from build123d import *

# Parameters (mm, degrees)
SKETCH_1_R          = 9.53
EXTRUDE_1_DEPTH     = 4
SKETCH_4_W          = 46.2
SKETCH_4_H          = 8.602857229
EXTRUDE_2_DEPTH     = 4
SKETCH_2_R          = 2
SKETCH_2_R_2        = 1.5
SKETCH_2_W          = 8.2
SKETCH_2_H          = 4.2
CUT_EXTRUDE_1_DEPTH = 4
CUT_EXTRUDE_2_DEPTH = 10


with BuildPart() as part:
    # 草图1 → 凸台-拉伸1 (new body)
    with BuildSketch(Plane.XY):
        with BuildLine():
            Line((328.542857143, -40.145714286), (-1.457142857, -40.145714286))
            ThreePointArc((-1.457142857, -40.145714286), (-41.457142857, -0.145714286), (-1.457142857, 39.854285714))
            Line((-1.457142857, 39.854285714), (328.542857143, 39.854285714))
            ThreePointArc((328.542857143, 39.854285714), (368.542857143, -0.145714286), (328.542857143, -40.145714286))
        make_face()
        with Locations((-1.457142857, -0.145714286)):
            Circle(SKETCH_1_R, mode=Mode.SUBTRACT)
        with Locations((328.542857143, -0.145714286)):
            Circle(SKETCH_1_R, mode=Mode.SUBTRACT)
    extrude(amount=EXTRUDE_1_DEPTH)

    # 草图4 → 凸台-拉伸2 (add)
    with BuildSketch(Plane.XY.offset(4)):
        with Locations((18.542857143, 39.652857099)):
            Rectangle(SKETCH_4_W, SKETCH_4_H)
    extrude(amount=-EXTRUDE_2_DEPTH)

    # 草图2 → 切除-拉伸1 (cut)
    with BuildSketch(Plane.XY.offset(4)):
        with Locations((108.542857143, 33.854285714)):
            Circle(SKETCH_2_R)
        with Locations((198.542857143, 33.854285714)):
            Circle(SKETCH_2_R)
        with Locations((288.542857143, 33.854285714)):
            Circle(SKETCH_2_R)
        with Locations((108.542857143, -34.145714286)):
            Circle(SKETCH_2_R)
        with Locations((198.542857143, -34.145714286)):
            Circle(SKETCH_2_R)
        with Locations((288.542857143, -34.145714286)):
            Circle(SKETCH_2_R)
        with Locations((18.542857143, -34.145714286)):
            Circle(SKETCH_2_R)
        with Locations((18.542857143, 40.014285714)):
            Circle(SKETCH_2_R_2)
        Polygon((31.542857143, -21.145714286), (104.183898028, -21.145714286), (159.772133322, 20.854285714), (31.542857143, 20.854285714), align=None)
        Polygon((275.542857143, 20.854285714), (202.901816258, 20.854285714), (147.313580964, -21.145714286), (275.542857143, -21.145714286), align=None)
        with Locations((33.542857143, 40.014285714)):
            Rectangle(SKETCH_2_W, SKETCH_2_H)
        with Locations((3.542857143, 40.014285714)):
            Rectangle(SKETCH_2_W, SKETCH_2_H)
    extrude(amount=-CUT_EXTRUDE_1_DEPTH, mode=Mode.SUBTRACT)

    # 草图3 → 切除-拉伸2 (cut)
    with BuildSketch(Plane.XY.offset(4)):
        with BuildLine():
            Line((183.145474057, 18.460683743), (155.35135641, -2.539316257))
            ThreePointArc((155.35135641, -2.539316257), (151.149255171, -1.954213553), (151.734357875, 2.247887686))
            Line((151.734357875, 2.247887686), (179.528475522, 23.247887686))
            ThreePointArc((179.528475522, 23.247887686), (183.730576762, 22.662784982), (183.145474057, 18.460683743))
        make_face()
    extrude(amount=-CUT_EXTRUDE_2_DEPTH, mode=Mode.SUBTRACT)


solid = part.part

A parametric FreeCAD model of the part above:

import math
import FreeCAD as App
import Part
import Sketcher

V = App.Vector
Q = App.Units.Quantity

doc = App.newDocument("Part")
body = doc.addObject("PartDesign::Body", "Body")

# Sketch on XY plane
sketch1 = body.newObject("Sketcher::SketchObject", "Sketch")
sketch1.AttachmentSupport = (doc.getObject("XY_Plane"), [""])
sketch1.MapMode = "FlatFace"
sketch1.addGeometry(Part.LineSegment(V(-1, -40, 0), V(329, -40, 0)), False)
sketch1.addGeometry(Part.ArcOfCircle(Part.Circle(V(329, 0, 0), V(0, 0, 1), 40), math.radians(-90), math.radians(90)), False)
sketch1.addGeometry(Part.LineSegment(V(329, 40, 0), V(-1, 40, 0)), False)
sketch1.addGeometry(Part.ArcOfCircle(Part.Circle(V(-1, 0, 0), V(0, 0, 1), 40), math.radians(90), math.radians(270)), False)
sketch1.addGeometry(Part.Circle(V(329, 0, 0), V(0, 0, 1), 10), False)
sketch1.addGeometry(Part.Circle(V(-1, 0, 0), V(0, 0, 1), 10), False)
sketch1.addConstraint(Sketcher.Constraint("Tangent", 0, 2, 1, 1))
sketch1.addConstraint(Sketcher.Constraint("Tangent", 1, 2, 2, 1))
sketch1.addConstraint(Sketcher.Constraint("Tangent", 2, 2, 3, 1))
sketch1.addConstraint(Sketcher.Constraint("Tangent", 3, 2, 0, 1))
sketch1.addConstraint(Sketcher.Constraint("Horizontal", 0))
sketch1.addConstraint(Sketcher.Constraint("Horizontal", 2))
sketch1.addConstraint(Sketcher.Constraint("Coincident", 4, 3, 1, 3))
sketch1.addConstraint(Sketcher.Constraint("Coincident", 5, 3, 3, 3))
sketch1.addConstraint(Sketcher.Constraint("Equal", 4, 5))
sketch1.addConstraint(Sketcher.Constraint("Radius", 1, Q("40 mm")))
sketch1.addConstraint(Sketcher.Constraint("Diameter", 4, Q("19.06 mm")))
sketch1.addConstraint(Sketcher.Constraint("DistanceX", 0, 1, 0, 2, Q("330 mm")))
sketch1.addConstraint(Sketcher.Constraint("DistanceX", -1, 1, 1, 3, Q("328.542857 mm")))
sketch1.addConstraint(Sketcher.Constraint("DistanceY", 1, 3, -1, 1, Q("0.145714 mm")))
pad1 = body.newObject("PartDesign::Pad", "Pad")
pad1.Profile = sketch1
pad1.Length = 4

# Sketch on XY plane
sketch2 = body.newObject("Sketcher::SketchObject", "Sketch001")
sketch2.AttachmentSupport = (doc.getObject("XY_Plane"), [""])
sketch2.MapMode = "FlatFace"
sketch2.AttachmentOffset = App.Placement(V(0, 0, 4), App.Rotation())
sketch2.addGeometry(Part.LineSegment(V(-5, 44, 0), V(-5, 35, 0)), False)
sketch2.addGeometry(Part.LineSegment(V(-5, 35, 0), V(42, 35, 0)), False)
sketch2.addGeometry(Part.LineSegment(V(42, 35, 0), V(42, 44, 0)), False)
sketch2.addGeometry(Part.LineSegment(V(42, 44, 0), V(-5, 44, 0)), False)
sketch2.addConstraint(Sketcher.Constraint("Coincident", 0, 2, 1, 1))
sketch2.addConstraint(Sketcher.Constraint("Coincident", 1, 2, 2, 1))
sketch2.addConstraint(Sketcher.Constraint("Coincident", 2, 2, 3, 1))
sketch2.addConstraint(Sketcher.Constraint("Coincident", 3, 2, 0, 1))
sketch2.addConstraint(Sketcher.Constraint("Vertical", 0))
sketch2.addConstraint(Sketcher.Constraint("Horizontal", 1))
sketch2.addConstraint(Sketcher.Constraint("Vertical", 2))
sketch2.addConstraint(Sketcher.Constraint("Horizontal", 3))
sketch2.addConstraint(Sketcher.Constraint("DistanceX", 1, 1, 1, 2, Q("46.2 mm")))
sketch2.addConstraint(Sketcher.Constraint("DistanceY", 0, 2, 0, 1, Q("8.602857 mm")))
sketch2.addConstraint(Sketcher.Constraint("DistanceY", -1, 1, 0, 2, Q("35.351428 mm")))
sketch2.addConstraint(Sketcher.Constraint("DistanceX", 0, 2, -1, 1, Q("4.557143 mm")))
pad2 = body.newObject("PartDesign::Pad", "Pad001")
pad2.Profile = sketch2
pad2.Length = 4
pad2.Reversed = True

# Sketch on XY plane
sketch3 = body.newObject("Sketcher::SketchObject", "Sketch002")
sketch3.AttachmentSupport = (doc.getObject("XY_Plane"), [""])
sketch3.MapMode = "FlatFace"
sketch3.AttachmentOffset = App.Placement(V(0, 0, 4), App.Rotation())
sketch3.addGeometry(Part.Circle(V(108.5, 33.9, 0), V(0, 0, 1), 2), False)
sketch3.addGeometry(Part.Circle(V(198.5, 33.9, 0), V(0, 0, 1), 2), False)
sketch3.addGeometry(Part.Circle(V(288.5, 33.9, 0), V(0, 0, 1), 2), False)
sketch3.addGeometry(Part.Circle(V(108.5, -34.1, 0), V(0, 0, 1), 2), False)
sketch3.addGeometry(Part.Circle(V(198.5, -34.1, 0), V(0, 0, 1), 2), False)
sketch3.addGeometry(Part.Circle(V(288.5, -34.1, 0), V(0, 0, 1), 2), False)
sketch3.addGeometry(Part.Circle(V(18.5, -34.1, 0), V(0, 0, 1), 2), False)
sketch3.addGeometry(Part.Circle(V(18.5, 40, 0), V(0, 0, 1), 1.5), False)
sketch3.addGeometry(Part.LineSegment(V(31.5, -21.1, 0), V(104.2, -21.1, 0)), False)
sketch3.addGeometry(Part.LineSegment(V(104.2, -21.1, 0), V(159.8, 20.9, 0)), False)
sketch3.addGeometry(Part.LineSegment(V(159.8, 20.9, 0), V(31.5, 20.9, 0)), False)
sketch3.addGeometry(Part.LineSegment(V(31.5, 20.9, 0), V(31.5, -21.1, 0)), False)
sketch3.addGeometry(Part.LineSegment(V(275.5, 20.9, 0), V(202.9, 20.9, 0)), False)
sketch3.addGeometry(Part.LineSegment(V(202.9, 20.9, 0), V(147.3, -21.1, 0)), False)
sketch3.addGeometry(Part.LineSegment(V(147.3, -21.1, 0), V(275.5, -21.1, 0)), False)
sketch3.addGeometry(Part.LineSegment(V(275.5, -21.1, 0), V(275.5, 20.9, 0)), False)
sketch3.addGeometry(Part.LineSegment(V(29.4, 42.1, 0), V(29.4, 37.9, 0)), False)
sketch3.addGeometry(Part.LineSegment(V(29.4, 37.9, 0), V(37.6, 37.9, 0)), False)
sketch3.addGeometry(Part.LineSegment(V(37.6, 37.9, 0), V(37.6, 42.1, 0)), False)
sketch3.addGeometry(Part.LineSegment(V(37.6, 42.1, 0), V(29.4, 42.1, 0)), False)
sketch3.addGeometry(Part.LineSegment(V(-0.6, 42.1, 0), V(-0.6, 37.9, 0)), False)
sketch3.addGeometry(Part.LineSegment(V(-0.6, 37.9, 0), V(7.6, 37.9, 0)), False)
sketch3.addGeometry(Part.LineSegment(V(7.6, 37.9, 0), V(7.6, 42.1, 0)), False)
sketch3.addGeometry(Part.LineSegment(V(7.6, 42.1, 0), V(-0.6, 42.1, 0)), False)
sketch3.addConstraint(Sketcher.Constraint("Coincident", 8, 2, 9, 1))
sketch3.addConstraint(Sketcher.Constraint("Coincident", 9, 2, 10, 1))
sketch3.addConstraint(Sketcher.Constraint("Coincident", 10, 2, 11, 1))
sketch3.addConstraint(Sketcher.Constraint("Coincident", 11, 2, 8, 1))
sketch3.addConstraint(Sketcher.Constraint("Coincident", 12, 2, 13, 1))
sketch3.addConstraint(Sketcher.Constraint("Coincident", 13, 2, 14, 1))
sketch3.addConstraint(Sketcher.Constraint("Coincident", 14, 2, 15, 1))
sketch3.addConstraint(Sketcher.Constraint("Coincident", 15, 2, 12, 1))
sketch3.addConstraint(Sketcher.Constraint("Coincident", 16, 2, 17, 1))
sketch3.addConstraint(Sketcher.Constraint("Coincident", 17, 2, 18, 1))
sketch3.addConstraint(Sketcher.Constraint("Coincident", 18, 2, 19, 1))
sketch3.addConstraint(Sketcher.Constraint("Coincident", 19, 2, 16, 1))
sketch3.addConstraint(Sketcher.Constraint("Coincident", 20, 2, 21, 1))
sketch3.addConstraint(Sketcher.Constraint("Coincident", 21, 2, 22, 1))
sketch3.addConstraint(Sketcher.Constraint("Coincident", 22, 2, 23, 1))
sketch3.addConstraint(Sketcher.Constraint("Coincident", 23, 2, 20, 1))
sketch3.addConstraint(Sketcher.Constraint("Horizontal", 8))
sketch3.addConstraint(Sketcher.Constraint("Horizontal", 10))
sketch3.addConstraint(Sketcher.Constraint("Vertical", 11))
sketch3.addConstraint(Sketcher.Constraint("Horizontal", 12))
sketch3.addConstraint(Sketcher.Constraint("Horizontal", 14))
sketch3.addConstraint(Sketcher.Constraint("Vertical", 15))
sketch3.addConstraint(Sketcher.Constraint("Vertical", 16))
sketch3.addConstraint(Sketcher.Constraint("Horizontal", 17))
sketch3.addConstraint(Sketcher.Constraint("Vertical", 18))
sketch3.addConstraint(Sketcher.Constraint("Horizontal", 19))
sketch3.addConstraint(Sketcher.Constraint("Vertical", 20))
sketch3.addConstraint(Sketcher.Constraint("Horizontal", 21))
sketch3.addConstraint(Sketcher.Constraint("Vertical", 22))
sketch3.addConstraint(Sketcher.Constraint("Horizontal", 23))
sketch3.addConstraint(Sketcher.Constraint("Equal", 0, 1))
sketch3.addConstraint(Sketcher.Constraint("Equal", 1, 2))
sketch3.addConstraint(Sketcher.Constraint("Equal", 2, 3))
sketch3.addConstraint(Sketcher.Constraint("Equal", 3, 4))
sketch3.addConstraint(Sketcher.Constraint("Equal", 4, 5))
sketch3.addConstraint(Sketcher.Constraint("Equal", 5, 6))
sketch3.addConstraint(Sketcher.Constraint("Parallel", 9, 13))
sketch3.addConstraint(Sketcher.Constraint("Horizontal", 0, 3, 1, 3))
sketch3.addConstraint(Sketcher.Constraint("Horizontal", 1, 3, 2, 3))
sketch3.addConstraint(Sketcher.Constraint("Horizontal", 3, 3, 4, 3))
sketch3.addConstraint(Sketcher.Constraint("Horizontal", 4, 3, 5, 3))
sketch3.addConstraint(Sketcher.Constraint("Horizontal", 5, 3, 6, 3))
sketch3.addConstraint(Sketcher.Constraint("Horizontal", 10, 2, 12, 2))
sketch3.addConstraint(Sketcher.Constraint("Horizontal", 11, 2, 13, 2))
sketch3.addConstraint(Sketcher.Constraint("Horizontal", 17, 2, 20, 2))
sketch3.addConstraint(Sketcher.Constraint("Horizontal", 19, 2, 22, 2))
sketch3.addConstraint(Sketcher.Constraint("Vertical", 0, 3, 3, 3))
sketch3.addConstraint(Sketcher.Constraint("Vertical", 1, 3, 4, 3))
sketch3.addConstraint(Sketcher.Constraint("Vertical", 2, 3, 5, 3))
sketch3.addConstraint(Sketcher.Constraint("Vertical", 6, 3, 7, 3))
sketch3.addConstraint(Sketcher.Constraint("Equal", 8, 12))
sketch3.addConstraint(Sketcher.Constraint("Equal", 19, 21))
sketch3.addConstraint(Sketcher.Constraint("Diameter", 0, Q("4 mm")))
sketch3.addConstraint(Sketcher.Constraint("Diameter", 7, Q("3 mm")))
sketch3.addConstraint(Sketcher.Constraint("DistanceY", 11, 2, 11, 1, Q("42 mm")))
sketch3.addConstraint(Sketcher.Constraint("DistanceX", 17, 1, 17, 2, Q("8.2 mm")))
sketch3.addConstraint(Sketcher.Constraint("DistanceY", 16, 2, 16, 1, Q("4.2 mm")))
sketch3.addConstraint(Sketcher.Constraint("DistanceX", 0, 3, 1, 3, Q("90 mm")))
sketch3.addConstraint(Sketcher.Constraint("DistanceX", 1, 3, 2, 3, Q("90 mm")))
sketch3.addConstraint(Sketcher.Constraint("DistanceY", 3, 3, 0, 3, Q("68 mm")))
sketch3.addConstraint(Sketcher.Constraint("DistanceX", 6, 3, 3, 3, Q("90 mm")))
sketch3.addConstraint(Sketcher.Constraint("DistanceY", 3, 3, 8, 2, Q("13 mm")))
sketch3.addConstraint(Sketcher.Constraint("DistanceX", 7, 3, 10, 2, Q("13 mm")))
sketch3.addConstraint(Sketcher.Constraint("DistanceX", 14, 2, 5, 3, Q("13 mm")))
sketch3.addConstraint(Sketcher.Constraint("DistanceX", 20, 2, 16, 2, Q("30 mm")))
sketch3.addConstraint(Sketcher.Constraint("DistanceX", 7, 3, 16, 2, Q("10.9 mm")))
sketch3.addConstraint(Sketcher.Constraint("DistanceY", 16, 2, 7, 3, Q("2.1 mm")))
sketch3.addConstraint(Sketcher.Constraint("DistanceY", 6, 3, 7, 3, Q("74.16 mm")))
sketch3.addConstraint(Sketcher.Constraint("DistanceX", 8, 1, 8, 2, Q("72.641041 mm")))
sketch3.addConstraint(Sketcher.Constraint("DistanceX", -1, 1, 8, 2, Q("104.183898 mm")))
sketch3.addConstraint(Sketcher.Constraint("DistanceX", 10, 2, 10, 1, Q("128.229276 mm")))
sketch3.addConstraint(Sketcher.Constraint("DistanceY", -1, 1, 0, 3, Q("33.854286 mm")))
pocket1 = body.newObject("PartDesign::Pocket", "Pocket")
pocket1.Profile = sketch3
pocket1.Length = 4

# Sketch on XY plane
sketch4 = body.newObject("Sketcher::SketchObject", "Sketch003")
sketch4.AttachmentSupport = (doc.getObject("XY_Plane"), [""])
sketch4.MapMode = "FlatFace"
sketch4.AttachmentOffset = App.Placement(V(0, 0, 4), App.Rotation())
sketch4.addGeometry(Part.LineSegment(V(155.4, -2.5, 0), V(183.1, 18.5, 0)), False)
sketch4.addGeometry(Part.ArcOfCircle(Part.Circle(V(181.3, 20.9, 0), V(0, 0, 1), 3), math.radians(-53), math.radians(127)), False)
sketch4.addGeometry(Part.LineSegment(V(179.5, 23.2, 0), V(151.7, 2.2, 0)), False)
sketch4.addGeometry(Part.ArcOfCircle(Part.Circle(V(153.5, -0.1, 0), V(0, 0, 1), 3), math.radians(127), math.radians(307)), False)
sketch4.addConstraint(Sketcher.Constraint("Tangent", 0, 2, 1, 1))
sketch4.addConstraint(Sketcher.Constraint("Tangent", 1, 2, 2, 1))
sketch4.addConstraint(Sketcher.Constraint("Tangent", 2, 2, 3, 1))
sketch4.addConstraint(Sketcher.Constraint("Tangent", 3, 2, 0, 1))
sketch4.addConstraint(Sketcher.Constraint("Equal", 1, 3))
sketch4.addConstraint(Sketcher.Constraint("Radius", 1, Q("3 mm")))
sketch4.addConstraint(Sketcher.Constraint("DistanceY", 3, 3, 1, 3, Q("21 mm")))
sketch4.addConstraint(Sketcher.Constraint("DistanceX", 1, 2, 0, 2, Q("3.616999 mm")))
sketch4.addConstraint(Sketcher.Constraint("DistanceX", -1, 1, 1, 3, Q("181.336975 mm")))
sketch4.addConstraint(Sketcher.Constraint("DistanceY", -1, 1, 1, 3, Q("20.854286 mm")))
pocket2 = body.newObject("PartDesign::Pocket", "Pocket001")
pocket2.Profile = sketch4
pocket2.Length = 10

doc.recompute()
